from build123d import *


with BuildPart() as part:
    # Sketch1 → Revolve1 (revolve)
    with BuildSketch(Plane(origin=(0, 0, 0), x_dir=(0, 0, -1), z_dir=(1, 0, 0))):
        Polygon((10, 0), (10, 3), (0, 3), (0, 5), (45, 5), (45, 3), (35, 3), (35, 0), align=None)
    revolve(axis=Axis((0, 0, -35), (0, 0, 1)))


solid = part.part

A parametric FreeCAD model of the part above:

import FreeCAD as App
import Part
import Sketcher
from FreeCAD import Vector
Q = App.Units.Quantity

doc = App.newDocument("Part")
body = doc.addObject("PartDesign::Body", "Body")

# Sketch on YZ plane
sketch1 = body.newObject("Sketcher::SketchObject", "Sketch")
sketch1.AttachmentSupport = (doc.getObject("YZ_Plane"), [""])
sketch1.MapMode = "FlatFace"
sketch1.addGeometry(Part.LineSegment(Vector(3, -10, 0), Vector(0, -10, 0)), False)
sketch1.addGeometry(Part.LineSegment(Vector(0, -10, 0), Vector(0, -35, 0)), False)
sketch1.addGeometry(Part.LineSegment(Vector(0, -35, 0), Vector(3, -35, 0)), False)
sketch1.addGeometry(Part.LineSegment(Vector(3, -35, 0), Vector(3, -45, 0)), False)
sketch1.addGeometry(Part.LineSegment(Vector(3, -45, 0), Vector(5, -45, 0)), False)
sketch1.addGeometry(Part.LineSegment(Vector(5, -45, 0), Vector(5, 0, 0)), False)
sketch1.addGeometry(Part.LineSegment(Vector(5, 0, 0), Vector(3, 0, 0)), False)
sketch1.addGeometry(Part.LineSegment(Vector(3, 0, 0), Vector(3, -10, 0)), False)
sketch1.addConstraint(Sketcher.Constraint("Coincident", 0, 2, 1, 1))
sketch1.addConstraint(Sketcher.Constraint("Coincident", 1, 2, 2, 1))
sketch1.addConstraint(Sketcher.Constraint("Coincident", 2, 2, 3, 1))
sketch1.addConstraint(Sketcher.Constraint("Coincident", 3, 2, 4, 1))
sketch1.addConstraint(Sketcher.Constraint("Coincident", 4, 2, 5, 1))
sketch1.addConstraint(Sketcher.Constraint("Coincident", 5, 2, 6, 1))
sketch1.addConstraint(Sketcher.Constraint("Coincident", 6, 2, 7, 1))
sketch1.addConstraint(Sketcher.Constraint("Coincident", 7, 2, 0, 1))
sketch1.addConstraint(Sketcher.Constraint("Horizontal", 0))
sketch1.addConstraint(Sketcher.Constraint("Vertical", 1))
sketch1.addConstraint(Sketcher.Constraint("Horizontal", 2))
sketch1.addConstraint(Sketcher.Constraint("Vertical", 3))
sketch1.addConstraint(Sketcher.Constraint("Horizontal", 4))
sketch1.addConstraint(Sketcher.Constraint("Vertical", 5))
sketch1.addConstraint(Sketcher.Constraint("Horizontal", 6))
sketch1.addConstraint(Sketcher.Constraint("Vertical", 7))
sketch1.addConstraint(Sketcher.Constraint("PointOnObject", 0, 2, -2))
sketch1.addConstraint(Sketcher.Constraint("PointOnObject", 5, 2, -1))
sketch1.addConstraint(Sketcher.Constraint("Vertical", 3, 2, 6, 2))
sketch1.addConstraint(Sketcher.Constraint("Equal", 3, 7))
sketch1.addConstraint(Sketcher.Constraint("DistanceX", 0, 2, 0, 1, Q("3 mm")))
sketch1.addConstraint(Sketcher.Constraint("DistanceX", 4, 1, 4, 2, Q("2 mm")))
sketch1.addConstraint(Sketcher.Constraint("DistanceY", 1, 2, 1, 1, Q("25 mm")))
sketch1.addConstraint(Sketcher.Constraint("DistanceY", 3, 2, 3, 1, Q("10 mm")))
revolution = body.newObject("PartDesign::Revolution", "Revolution")
revolution.Profile = sketch1
revolution.ReferenceAxis = (sketch1, ["V_Axis"])
revolution.Angle = 360

doc.recompute()
